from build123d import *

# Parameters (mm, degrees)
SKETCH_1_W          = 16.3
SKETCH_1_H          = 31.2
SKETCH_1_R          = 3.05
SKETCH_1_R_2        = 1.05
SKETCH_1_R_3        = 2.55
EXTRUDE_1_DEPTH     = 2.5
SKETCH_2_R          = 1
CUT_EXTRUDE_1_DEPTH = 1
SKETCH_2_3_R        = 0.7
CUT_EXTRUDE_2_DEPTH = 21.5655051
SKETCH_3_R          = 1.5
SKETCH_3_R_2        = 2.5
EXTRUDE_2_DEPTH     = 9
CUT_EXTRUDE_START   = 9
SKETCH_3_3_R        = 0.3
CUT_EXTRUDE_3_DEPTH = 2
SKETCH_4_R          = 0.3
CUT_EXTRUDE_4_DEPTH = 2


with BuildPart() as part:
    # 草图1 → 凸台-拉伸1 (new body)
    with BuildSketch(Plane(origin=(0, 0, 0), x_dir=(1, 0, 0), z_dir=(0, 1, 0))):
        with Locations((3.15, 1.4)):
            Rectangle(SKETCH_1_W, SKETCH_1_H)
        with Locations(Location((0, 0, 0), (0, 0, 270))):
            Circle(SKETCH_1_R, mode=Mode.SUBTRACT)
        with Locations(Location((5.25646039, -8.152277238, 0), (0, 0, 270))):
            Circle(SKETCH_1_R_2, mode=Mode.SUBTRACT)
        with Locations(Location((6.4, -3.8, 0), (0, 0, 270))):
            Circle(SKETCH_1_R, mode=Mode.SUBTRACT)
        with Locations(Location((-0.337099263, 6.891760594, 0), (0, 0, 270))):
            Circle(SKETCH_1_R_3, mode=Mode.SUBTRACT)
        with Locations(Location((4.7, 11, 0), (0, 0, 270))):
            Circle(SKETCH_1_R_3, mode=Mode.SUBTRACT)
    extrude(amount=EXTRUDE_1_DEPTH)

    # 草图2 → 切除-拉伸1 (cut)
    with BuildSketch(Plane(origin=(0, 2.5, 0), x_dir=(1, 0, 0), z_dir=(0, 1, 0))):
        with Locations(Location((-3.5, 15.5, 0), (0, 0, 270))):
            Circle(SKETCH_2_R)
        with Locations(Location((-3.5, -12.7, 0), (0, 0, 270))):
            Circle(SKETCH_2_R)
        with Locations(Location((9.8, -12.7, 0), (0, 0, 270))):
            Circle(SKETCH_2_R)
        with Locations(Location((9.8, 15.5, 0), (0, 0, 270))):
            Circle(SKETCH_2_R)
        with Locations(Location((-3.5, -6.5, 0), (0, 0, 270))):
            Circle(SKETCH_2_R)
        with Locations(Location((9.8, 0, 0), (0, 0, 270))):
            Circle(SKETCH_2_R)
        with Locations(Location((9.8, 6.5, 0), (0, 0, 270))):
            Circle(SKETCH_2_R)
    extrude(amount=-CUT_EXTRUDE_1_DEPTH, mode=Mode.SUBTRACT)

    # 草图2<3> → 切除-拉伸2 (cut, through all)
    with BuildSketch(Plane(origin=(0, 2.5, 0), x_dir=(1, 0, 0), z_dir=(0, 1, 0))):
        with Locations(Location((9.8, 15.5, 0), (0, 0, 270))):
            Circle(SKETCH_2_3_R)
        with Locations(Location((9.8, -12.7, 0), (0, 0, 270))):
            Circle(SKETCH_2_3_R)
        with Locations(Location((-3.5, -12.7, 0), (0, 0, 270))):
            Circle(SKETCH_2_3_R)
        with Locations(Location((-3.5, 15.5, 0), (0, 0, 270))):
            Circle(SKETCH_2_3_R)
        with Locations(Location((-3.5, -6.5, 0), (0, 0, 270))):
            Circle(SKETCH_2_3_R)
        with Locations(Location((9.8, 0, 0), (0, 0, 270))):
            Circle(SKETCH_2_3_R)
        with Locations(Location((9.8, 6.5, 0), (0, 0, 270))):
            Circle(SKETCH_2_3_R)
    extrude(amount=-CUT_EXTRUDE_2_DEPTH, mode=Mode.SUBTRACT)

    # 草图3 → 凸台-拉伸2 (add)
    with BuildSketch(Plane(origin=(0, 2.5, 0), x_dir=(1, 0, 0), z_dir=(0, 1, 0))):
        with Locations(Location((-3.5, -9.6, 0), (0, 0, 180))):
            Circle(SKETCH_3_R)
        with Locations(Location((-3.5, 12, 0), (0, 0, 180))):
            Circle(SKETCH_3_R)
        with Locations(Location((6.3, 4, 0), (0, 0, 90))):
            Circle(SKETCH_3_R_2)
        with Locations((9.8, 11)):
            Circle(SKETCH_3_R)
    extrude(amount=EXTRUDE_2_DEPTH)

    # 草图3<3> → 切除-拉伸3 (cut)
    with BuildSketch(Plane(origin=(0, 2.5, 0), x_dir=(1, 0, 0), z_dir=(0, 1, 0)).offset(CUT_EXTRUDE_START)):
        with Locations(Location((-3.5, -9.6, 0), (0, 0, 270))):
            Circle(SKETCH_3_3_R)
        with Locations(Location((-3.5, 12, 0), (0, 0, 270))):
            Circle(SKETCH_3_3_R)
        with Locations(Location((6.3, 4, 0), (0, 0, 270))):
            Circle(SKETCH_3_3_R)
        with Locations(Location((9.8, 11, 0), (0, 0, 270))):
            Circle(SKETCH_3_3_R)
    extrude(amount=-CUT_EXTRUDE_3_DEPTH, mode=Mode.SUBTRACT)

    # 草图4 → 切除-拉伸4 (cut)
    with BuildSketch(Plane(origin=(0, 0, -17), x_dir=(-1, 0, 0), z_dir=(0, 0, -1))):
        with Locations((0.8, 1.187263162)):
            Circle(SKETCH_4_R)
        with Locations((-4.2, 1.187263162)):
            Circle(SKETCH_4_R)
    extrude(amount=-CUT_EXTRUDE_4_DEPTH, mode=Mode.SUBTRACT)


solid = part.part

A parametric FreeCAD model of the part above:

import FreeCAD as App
import Part
import Sketcher
from FreeCAD import Vector

doc = App.newDocument("Part")
body = doc.addObject("PartDesign::Body", "Body")

# Sketch on XZ plane
sketch1 = body.newObject("Sketcher::SketchObject", "Sketch")
sketch1.AttachmentSupport = (doc.getObject("XZ_Plane"), [""])
sketch1.MapMode = "FlatFace"
sketch1.addGeometry(Part.LineSegment(Vector(-5, -17, 0), Vector(-5, 14.2, 0)), False)
sketch1.addGeometry(Part.LineSegment(Vector(-5, 14.2, 0), Vector(11.3, 14.2, 0)), False)
sketch1.addGeometry(Part.LineSegment(Vector(11.3, 14.2, 0), Vector(11.3, -17, 0)), False)
sketch1.addGeometry(Part.LineSegment(Vector(11.3, -17, 0), Vector(-5, -17, 0)), False)
sketch1.addGeometry(Part.Circle(Vector(0, 0, 0), Vector(0, 0, 1), 3), False)
sketch1.addGeometry(Part.Circle(Vector(5.3, 8.2, 0), Vector(0, 0, 1), 1.1), False)
sketch1.addGeometry(Part.Circle(Vector(6.4, 3.8, 0), Vector(0, 0, 1), 3), False)
sketch1.addGeometry(Part.Circle(Vector(-0.3, -6.9, 0), Vector(0, 0, 1), 2.5), False)
sketch1.addGeometry(Part.Circle(Vector(4.7, -11, 0), Vector(0, 0, 1), 2.5), False)
sketch1.addConstraint(Sketcher.Constraint("Coincident", 0, 2, 1, 1))
sketch1.addConstraint(Sketcher.Constraint("Coincident", 1, 2, 2, 1))
sketch1.addConstraint(Sketcher.Constraint("Coincident", 2, 2, 3, 1))
sketch1.addConstraint(Sketcher.Constraint("Coincident", 3, 2, 0, 1))
sketch1.addConstraint(Sketcher.Constraint("Vertical", 0))
sketch1.addConstraint(Sketcher.Constraint("Horizontal", 1))
sketch1.addConstraint(Sketcher.Constraint("Vertical", 2))
sketch1.addConstraint(Sketcher.Constraint("Horizontal", 3))
sketch1.addConstraint(Sketcher.Constraint("Coincident", 4, 3, -1, 1))
sketch1.addConstraint(Sketcher.Constraint("Equal", 4, 6))
sketch1.addConstraint(Sketcher.Constraint("Equal", 7, 8))
sketch1.addConstraint(Sketcher.Constraint("Diameter", 4, 6.1))
sketch1.addConstraint(Sketcher.Constraint("Diameter", 5, 2.1))
sketch1.addConstraint(Sketcher.Constraint("Diameter", 7, 5.1))
sketch1.addConstraint(Sketcher.Constraint("DistanceX", 1, 1, 1, 2, 16.3))
sketch1.addConstraint(Sketcher.Constraint("DistanceY", 0, 1, 0, 2, 31.2))
sketch1.addConstraint(Sketcher.Constraint("DistanceY", 8, 3, -1, 1, 11.0))
sketch1.addConstraint(Sketcher.Constraint("DistanceX", 0, 2, -1, 1, 5.0))
sketch1.addConstraint(Sketcher.Constraint("DistanceY", 2, 2, -1, 1, 17.0))
sketch1.addConstraint(Sketcher.Constraint("DistanceX", -1, 1, 6, 3, 6.4))
sketch1.addConstraint(Sketcher.Constraint("DistanceY", -1, 1, 6, 3, 3.8))
sketch1.addConstraint(Sketcher.Constraint("DistanceX", -1, 1, 8, 3, 4.7))
sketch1.addConstraint(Sketcher.Constraint("DistanceX", 7, 3, -1, 1, 0.337099))
sketch1.addConstraint(Sketcher.Constraint("DistanceX", -1, 1, 5, 3, 5.25646))
sketch1.addConstraint(Sketcher.Constraint("DistanceY", 7, 3, -1, 1, 6.891761))
sketch1.addConstraint(Sketcher.Constraint("DistanceY", -1, 1, 5, 3, 8.152277))
pad1 = body.newObject("PartDesign::Pad", "Pad")
pad1.Profile = sketch1
pad1.Length = 2.5
pad1.Reversed = True

# Sketch on XZ plane
sketch2 = body.newObject("Sketcher::SketchObject", "Sketch001")
sketch2.AttachmentSupport = (doc.getObject("XZ_Plane"), [""])
sketch2.MapMode = "FlatFace"
sketch2.AttachmentOffset = App.Placement(Vector(0, 0, -2.5), App.Rotation())
sketch2.addGeometry(Part.Circle(Vector(-3.5, -15.5, 0), Vector(0, 0, 1), 1), False)
sketch2.addGeometry(Part.Circle(Vector(-3.5, 12.7, 0), Vector(0, 0, 1), 1), False)
sketch2.addGeometry(Part.Circle(Vector(9.8, 12.7, 0), Vector(0, 0, 1), 1), False)
sketch2.addGeometry(Part.Circle(Vector(9.8, -15.5, 0), Vector(0, 0, 1), 1), False)
sketch2.addGeometry(Part.Circle(Vector(-3.5, 6.5, 0), Vector(0, 0, 1), 1), False)
sketch2.addGeometry(Part.Circle(Vector(9.8, 0, 0), Vector(0, 0, 1), 1), False)
sketch2.addGeometry(Part.Circle(Vector(9.8, -6.5, 0), Vector(0, 0, 1), 1), False)
sketch2.addConstraint(Sketcher.Constraint("Equal", 0, 1))
sketch2.addConstraint(Sketcher.Constraint("Equal", 1, 2))
sketch2.addConstraint(Sketcher.Constraint("Equal", 2, 3))
sketch2.addConstraint(Sketcher.Constraint("Equal", 3, 4))
sketch2.addConstraint(Sketcher.Constraint("Equal", 4, 5))
sketch2.addConstraint(Sketcher.Constraint("Equal", 5, 6))
sketch2.addConstraint(Sketcher.Constraint("PointOnObject", 5, 3, -1))
sketch2.addConstraint(Sketcher.Constraint("Horizontal", 1, 3, 2, 3))
sketch2.addConstraint(Sketcher.Constraint("Horizontal", 0, 3, 3, 3))
sketch2.addConstraint(Sketcher.Constraint("Vertical", 0, 3, 1, 3))
sketch2.addConstraint(Sketcher.Constraint("Vertical", 2, 3, 3, 3))
sketch2.addConstraint(Sketcher.Constraint("Vertical", 1, 3, 4, 3))
sketch2.addConstraint(Sketcher.Constraint("Vertical", 3, 3, 5, 3))
sketch2.addConstraint(Sketcher.Constraint("Vertical", 5, 3, 6, 3))
sketch2.addConstraint(Sketcher.Constraint("Diameter", 0, 2.0))
sketch2.addConstraint(Sketcher.Constraint("DistanceY", 0, 3, 4, 3, 22.0))
sketch2.addConstraint(Sketcher.Constraint("DistanceY", 3, 3, 6, 3, 9.0))
sketch2.addConstraint(Sketcher.Constraint("DistanceX", 0, 3, -1, 1, 3.5))
sketch2.addConstraint(Sketcher.Constraint("DistanceY", 0, 3, -1, 1, 15.5))
sketch2.addConstraint(Sketcher.Constraint("DistanceY", -1, 1, 1, 3, 12.7))
sketch2.addConstraint(Sketcher.Constraint("DistanceX", -1, 1, 2, 3, 9.8))
pocket1 = body.newObject("PartDesign::Pocket", "Pocket")
pocket1.Profile = sketch2
pocket1.Length = 1
pocket1.Reversed = True

# Sketch on XZ plane
sketch3 = body.newObject("Sketcher::SketchObject", "Sketch002")
sketch3.AttachmentSupport = (doc.getObject("XZ_Plane"), [""])
sketch3.MapMode = "FlatFace"
sketch3.AttachmentOffset = App.Placement(Vector(0, 0, -2.5), App.Rotation())
sketch3.addGeometry(Part.Circle(Vector(9.8, -15.5, 0), Vector(0, 0, 1), 0.7), False)
sketch3.addGeometry(Part.Circle(Vector(9.8, 12.7, 0), Vector(0, 0, 1), 0.7), False)
sketch3.addGeometry(Part.Circle(Vector(-3.5, 12.7, 0), Vector(0, 0, 1), 0.7), False)
sketch3.addGeometry(Part.Circle(Vector(-3.5, -15.5, 0), Vector(0, 0, 1), 0.7), False)
sketch3.addGeometry(Part.Circle(Vector(-3.5, 6.5, 0), Vector(0, 0, 1), 0.7), False)
sketch3.addGeometry(Part.Circle(Vector(9.8, 0, 0), Vector(0, 0, 1), 0.7), False)
sketch3.addGeometry(Part.Circle(Vector(9.8, -6.5, 0), Vector(0, 0, 1), 0.7), False)
sketch3.addConstraint(Sketcher.Constraint("Equal", 0, 1))
sketch3.addConstraint(Sketcher.Constraint("Equal", 1, 2))
sketch3.addConstraint(Sketcher.Constraint("Equal", 2, 3))
sketch3.addConstraint(Sketcher.Constraint("Equal", 3, 4))
sketch3.addConstraint(Sketcher.Constraint("Equal", 4, 5))
sketch3.addConstraint(Sketcher.Constraint("Equal", 5, 6))
sketch3.addConstraint(Sketcher.Constraint("PointOnObject", 5, 3, -1))
sketch3.addConstraint(Sketcher.Constraint("Horizontal", 1, 3, 2, 3))
sketch3.addConstraint(Sketcher.Constraint("Horizontal", 0, 3, 3, 3))
sketch3.addConstraint(Sketcher.Constraint("Vertical", 0, 3, 1, 3))
sketch3.addConstraint(Sketcher.Constraint("Vertical", 2, 3, 3, 3))
sketch3.addConstraint(Sketcher.Constraint("Vertical", 3, 3, 4, 3))
sketch3.addConstraint(Sketcher.Constraint("Vertical", 1, 3, 5, 3))
sketch3.addConstraint(Sketcher.Constraint("Vertical", 5, 3, 6, 3))
sketch3.addConstraint(Sketcher.Constraint("Diameter", 0, 1.4))
sketch3.addConstraint(Sketcher.Constraint("DistanceY", 3, 3, 4, 3, 22.0))
sketch3.addConstraint(Sketcher.Constraint("DistanceY", 0, 3, 6, 3, 9.0))
sketch3.addConstraint(Sketcher.Constraint("DistanceX", -1, 1, 0, 3, 9.8))
sketch3.addConstraint(Sketcher.Constraint("DistanceY", 0, 3, -1, 1, 15.5))
sketch3.addConstraint(Sketcher.Constraint("DistanceY", -1, 1, 1, 3, 12.7))
sketch3.addConstraint(Sketcher.Constraint("DistanceX", 2, 3, -1, 1, 3.5))
pocket2 = body.newObject("PartDesign::Pocket", "Pocket001")
pocket2.Profile = sketch3
pocket2.Type = "ThroughAll"
pocket2.Reversed = True

# Sketch on XZ plane
sketch4 = body.newObject("Sketcher::SketchObject", "Sketch003")
sketch4.AttachmentSupport = (doc.getObject("XZ_Plane"), [""])
sketch4.MapMode = "FlatFace"
sketch4.AttachmentOffset = App.Placement(Vector(0, 0, -2.5), App.Rotation())
sketch4.addGeometry(Part.Circle(Vector(-3.5, 9.6, 0), Vector(0, 0, 1), 1.5), False)
sketch4.addGeometry(Part.Circle(Vector(-3.5, -12, 0), Vector(0, 0, 1), 1.5), False)
sketch4.addGeometry(Part.Circle(Vector(6.3, -4, 0), Vector(0, 0, 1), 2.5), False)
sketch4.addGeometry(Part.Circle(Vector(9.8, -11, 0), Vector(0, 0, 1), 1.5), False)
sketch4.addConstraint(Sketcher.Constraint("Equal", 0, 1))
sketch4.addConstraint(Sketcher.Constraint("Equal", 1, 3))
sketch4.addConstraint(Sketcher.Constraint("Vertical", 0, 3, 1, 3))
sketch4.addConstraint(Sketcher.Constraint("Diameter", 0, 3.0))
sketch4.addConstraint(Sketcher.Constraint("Diameter", 2, 5.0))
sketch4.addConstraint(Sketcher.Constraint("DistanceY", 1, 3, -1, 1, 12.0))
sketch4.addConstraint(Sketcher.Constraint("DistanceY", 2, 3, -1, 1, 4.0))
sketch4.addConstraint(Sketcher.Constraint("DistanceY", 3, 3, -1, 1, 11.0))
sketch4.addConstraint(Sketcher.Constraint("DistanceX", 0, 3, -1, 1, 3.5))
sketch4.addConstraint(Sketcher.Constraint("DistanceY", -1, 1, 0, 3, 9.6))
sketch4.addConstraint(Sketcher.Constraint("DistanceX", -1, 1, 2, 3, 6.3))
sketch4.addConstraint(Sketcher.Constraint("DistanceX", -1, 1, 3, 3, 9.8))
pad2 = body.newObject("PartDesign::Pad", "Pad001")
pad2.Profile = sketch4
pad2.Length = 9
pad2.Reversed = True

# Sketch on XZ plane
sketch5 = body.newObject("Sketcher::SketchObject", "Sketch004")
sketch5.AttachmentSupport = (doc.getObject("XZ_Plane"), [""])
sketch5.MapMode = "FlatFace"
sketch5.AttachmentOffset = App.Placement(Vector(0, 0, -11.5), App.Rotation())
sketch5.addGeometry(Part.Circle(Vector(-3.5, 9.6, 0), Vector(0, 0, 1), 0.3), False)
sketch5.addGeometry(Part.Circle(Vector(-3.5, -12, 0), Vector(0, 0, 1), 0.3), False)
sketch5.addGeometry(Part.Circle(Vector(6.3, -4, 0), Vector(0, 0, 1), 0.3), False)
sketch5.addGeometry(Part.Circle(Vector(9.8, -11, 0), Vector(0, 0, 1), 0.3), False)
sketch5.addConstraint(Sketcher.Constraint("Equal", 0, 1))
sketch5.addConstraint(Sketcher.Constraint("Equal", 1, 2))
sketch5.addConstraint(Sketcher.Constraint("Equal", 2, 3))
sketch5.addConstraint(Sketcher.Constraint("Vertical", 0, 3, 1, 3))
sketch5.addConstraint(Sketcher.Constraint("Diameter", 0, 0.6))
sketch5.addConstraint(Sketcher.Constraint("DistanceY", 1, 3, -1, 1, 12.0))
sketch5.addConstraint(Sketcher.Constraint("DistanceY", 2, 3, -1, 1, 4.0))
sketch5.addConstraint(Sketcher.Constraint("DistanceY", 3, 3, -1, 1, 11.0))
sketch5.addConstraint(Sketcher.Constraint("DistanceX", 0, 3, -1, 1, 3.5))
sketch5.addConstraint(Sketcher.Constraint("DistanceY", -1, 1, 0, 3, 9.6))
sketch5.addConstraint(Sketcher.Constraint("DistanceX", -1, 1, 2, 3, 6.3))
sketch5.addConstraint(Sketcher.Constraint("DistanceX", -1, 1, 3, 3, 9.8))
pocket3 = body.newObject("PartDesign::Pocket", "Pocket002")
pocket3.Profile = sketch5
pocket3.Length = 2
pocket3.Reversed = True

# Sketch on XY plane
sketch6 = body.newObject("Sketcher::SketchObject", "Sketch005")
sketch6.AttachmentSupport = (doc.getObject("XY_Plane"), [""])
sketch6.MapMode = "FlatFace"
sketch6.AttachmentOffset = App.Placement(Vector(0, 0, -17), App.Rotation())
sketch6.addGeometry(Part.Circle(Vector(-0.8, 1.19, 0), Vector(0, 0, 1), 0.3), False)
sketch6.addGeometry(Part.Circle(Vector(4.2, 1.19, 0), Vector(0, 0, 1), 0.3), False)
sketch6.addConstraint(Sketcher.Constraint("Equal", 0, 1))
sketch6.addConstraint(Sketcher.Constraint("Horizontal", 0, 3, 1, 3))
sketch6.addConstraint(Sketcher.Constraint("Diameter", 0, 0.6))
sketch6.addConstraint(Sketcher.Constraint("DistanceX", 0, 3, 1, 3, 5.0))
sketch6.addConstraint(Sketcher.Constraint("DistanceX", 0, 3, -1, 1, 0.8))
sketch6.addConstraint(Sketcher.Constraint("DistanceY", -1, 1, 0, 3, 1.187263))
pocket4 = body.newObject("PartDesign::Pocket", "Pocket003")
pocket4.Profile = sketch6
pocket4.Length = 2
pocket4.Reversed = True

doc.recompute()
